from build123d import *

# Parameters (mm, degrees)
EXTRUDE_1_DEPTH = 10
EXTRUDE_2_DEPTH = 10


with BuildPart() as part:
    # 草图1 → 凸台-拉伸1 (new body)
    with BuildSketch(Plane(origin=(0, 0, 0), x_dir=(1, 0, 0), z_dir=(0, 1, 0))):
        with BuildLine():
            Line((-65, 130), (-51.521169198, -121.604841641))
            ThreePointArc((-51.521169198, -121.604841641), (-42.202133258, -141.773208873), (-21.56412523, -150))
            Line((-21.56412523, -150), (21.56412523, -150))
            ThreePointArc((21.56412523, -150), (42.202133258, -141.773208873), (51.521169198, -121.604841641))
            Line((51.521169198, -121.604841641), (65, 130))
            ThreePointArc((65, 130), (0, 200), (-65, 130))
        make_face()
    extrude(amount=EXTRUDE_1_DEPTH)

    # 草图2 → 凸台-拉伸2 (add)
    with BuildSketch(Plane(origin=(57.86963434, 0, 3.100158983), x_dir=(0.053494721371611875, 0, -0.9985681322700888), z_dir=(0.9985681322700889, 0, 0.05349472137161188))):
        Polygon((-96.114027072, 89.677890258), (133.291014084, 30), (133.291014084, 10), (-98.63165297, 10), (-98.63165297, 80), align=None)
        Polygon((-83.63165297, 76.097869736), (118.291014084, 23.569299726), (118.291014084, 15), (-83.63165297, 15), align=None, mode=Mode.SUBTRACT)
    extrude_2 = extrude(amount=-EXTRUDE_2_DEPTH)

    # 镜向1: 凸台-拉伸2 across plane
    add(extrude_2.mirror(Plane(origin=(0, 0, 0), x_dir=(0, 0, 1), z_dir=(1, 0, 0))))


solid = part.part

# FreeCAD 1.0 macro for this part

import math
import FreeCAD as App
import Part
import Sketcher

V = App.Vector

doc = App.newDocument("Part")
body = doc.addObject("PartDesign::Body", "Body")

# Sketch on XZ plane
sketch1 = doc.addObject("Sketcher::SketchObject", "Sketch")
body.addObject(sketch1)
sketch1.AttachmentSupport = (doc.XZ_Plane, [""])
sketch1.MapMode = "FlatFace"
sketch1.addGeometry([
    Part.LineSegment(V(-65, -130, 0), V(-51.521169, 121.604842, 0)),  # 0
    Part.ArcOfCircle(Part.Circle(V(-21.564125, 120, 0), V(0, 0, 1), 30), math.radians(90), math.radians(176.933514)),  # 1
    Part.LineSegment(V(-21.564125, 150, 0), V(21.564125, 150, 0)),  # 2
    Part.ArcOfCircle(Part.Circle(V(21.564125, 120, 0), V(0, 0, 1), 30), math.radians(3.066486), math.radians(90)),  # 3
    Part.LineSegment(V(51.521169, 121.604842, 0), V(65, -130, 0)),  # 4
    Part.ArcOfCircle(Part.Circle(V(0, -134.821429, 0), V(0, 0, 1), 65.178571), math.radians(175.757807), math.radians(364.242193)),  # 5
], False)
sketch1.addConstraint([
    Sketcher.Constraint("Tangent", 0, 2, 1, 2),
    Sketcher.Constraint("Tangent", 1, 1, 2, 1),
    Sketcher.Constraint("Tangent", 2, 2, 3, 2),
    Sketcher.Constraint("Tangent", 3, 1, 4, 1),
    Sketcher.Constraint("Coincident", 4, 2, 5, 2),
    Sketcher.Constraint("Coincident", 5, 1, 0, 1),
    Sketcher.Constraint("Horizontal", 2),
    Sketcher.Constraint("Equal", 1, 3),
    Sketcher.Constraint("Symmetric", 0, 2, 3, 1, -2),
    Sketcher.Constraint("PointOnObject", 5, 3, -2),
    Sketcher.Constraint("Radius", 1, 30.0),
    Sketcher.Constraint("DistanceY", -1, 1, 1, 3, 120.0),
    Sketcher.Constraint("DistanceX", -1, 1, 4, 2, 65.0),
    Sketcher.Constraint("DistanceY", 4, 2, -1, 1, 130.0),
    Sketcher.Constraint("Radius", 5, 65.178571),
    Sketcher.Constraint("DistanceX", 2, 1, 2, 2, 43.12825),
])
pad1 = doc.addObject("PartDesign::Pad", "Pad")
body.addObject(pad1)
pad1.Profile = sketch1
pad1.Length = 10
pad1.Reversed = True

# Sketch on an angled plane
sketch2 = doc.addObject("Sketcher::SketchObject", "Sketch001")
body.addObject(sketch2)
sketch2.Placement = App.Placement(V(57.869634, 0, 3.100159), App.Rotation(V(0.053494721, 0, -0.998568132), V(0, 0.999999999, 0), V(0.998568132, 0, 0.053494721), "ZXY"))
sketch2.addGeometry([
    Part.LineSegment(V(133.291014, 30, 0), V(-96.114027, 89.67789, 0)),  # 0
    Part.LineSegment(V(-96.114027, 89.67789, 0), V(-98.631653, 80, 0)),  # 1
    Part.LineSegment(V(-98.631653, 80, 0), V(-98.631653, 10, 0)),  # 2
    Part.LineSegment(V(-98.631653, 10, 0), V(133.291014, 10, 0)),  # 3
    Part.LineSegment(V(133.291014, 10, 0), V(133.291014, 30, 0)),  # 4
    Part.LineSegment(V(-83.631653, 76.09787, 0), V(118.291014, 23.5693, 0)),  # 5
    Part.LineSegment(V(118.291014, 23.5693, 0), V(118.291014, 15, 0)),  # 6
    Part.LineSegment(V(118.291014, 15, 0), V(-83.631653, 15, 0)),  # 7
    Part.LineSegment(V(-83.631653, 15, 0), V(-83.631653, 76.09787, 0)),  # 8
], False)
sketch2.addConstraint([
    Sketcher.Constraint("Coincident", 0, 2, 1, 1),
    Sketcher.Constraint("Coincident", 1, 2, 2, 1),
    Sketcher.Constraint("Coincident", 2, 2, 3, 1),
    Sketcher.Constraint("Coincident", 3, 2, 4, 1),
    Sketcher.Constraint("Coincident", 4, 2, 0, 1),
    Sketcher.Constraint("Coincident", 5, 2, 6, 1),
    Sketcher.Constraint("Coincident", 6, 2, 7, 1),
    Sketcher.Constraint("Coincident", 7, 2, 8, 1),
    Sketcher.Constraint("Coincident", 8, 2, 5, 1),
    Sketcher.Constraint("Vertical", 2),
    Sketcher.Constraint("Horizontal", 3),
    Sketcher.Constraint("Vertical", 4),
    Sketcher.Constraint("Vertical", 6),
    Sketcher.Constraint("Horizontal", 7),
    Sketcher.Constraint("Vertical", 8),
    Sketcher.Constraint("Perpendicular", 0, 1),
    Sketcher.Constraint("Perpendicular", 1, 5),
    Sketcher.Constraint("DistanceY", 2, 2, 2, 1, 70.0),
    Sketcher.Constraint("DistanceY", 4, 1, 4, 2, 20.0),
    Sketcher.Constraint("Distance", 1, 10.0),
    Sketcher.Constraint("DistanceY", -1, 1, 1, 2, 80.0),
    Sketcher.Constraint("DistanceY", -1, 1, 6, 2, 15.0),
    Sketcher.Constraint("DistanceX", 5, 2, 4, 2, 15.0),
    Sketcher.Constraint("DistanceX", 2, 2, 7, 2, 15.0),
    Sketcher.Constraint("DistanceY", 6, 2, 6, 1, 8.5693),
    Sketcher.Constraint("DistanceY", 8, 1, 8, 2, 61.09787),
    Sketcher.Constraint("DistanceX", 0, 2, -1, 1, 96.114027),
])
pad2 = doc.addObject("PartDesign::Pad", "Pad001")
body.addObject(pad2)
pad2.Profile = sketch2
pad2.Length = 10
pad2.Reversed = True
doc.recompute()

mirrored = doc.addObject("PartDesign::Mirrored", "Mirrored")
body.addObject(mirrored)
mirrored.Originals = [pad2]
mirrored.MirrorPlane = (doc.YZ_Plane, [""])
body.Tip = mirrored

doc.recompute()
